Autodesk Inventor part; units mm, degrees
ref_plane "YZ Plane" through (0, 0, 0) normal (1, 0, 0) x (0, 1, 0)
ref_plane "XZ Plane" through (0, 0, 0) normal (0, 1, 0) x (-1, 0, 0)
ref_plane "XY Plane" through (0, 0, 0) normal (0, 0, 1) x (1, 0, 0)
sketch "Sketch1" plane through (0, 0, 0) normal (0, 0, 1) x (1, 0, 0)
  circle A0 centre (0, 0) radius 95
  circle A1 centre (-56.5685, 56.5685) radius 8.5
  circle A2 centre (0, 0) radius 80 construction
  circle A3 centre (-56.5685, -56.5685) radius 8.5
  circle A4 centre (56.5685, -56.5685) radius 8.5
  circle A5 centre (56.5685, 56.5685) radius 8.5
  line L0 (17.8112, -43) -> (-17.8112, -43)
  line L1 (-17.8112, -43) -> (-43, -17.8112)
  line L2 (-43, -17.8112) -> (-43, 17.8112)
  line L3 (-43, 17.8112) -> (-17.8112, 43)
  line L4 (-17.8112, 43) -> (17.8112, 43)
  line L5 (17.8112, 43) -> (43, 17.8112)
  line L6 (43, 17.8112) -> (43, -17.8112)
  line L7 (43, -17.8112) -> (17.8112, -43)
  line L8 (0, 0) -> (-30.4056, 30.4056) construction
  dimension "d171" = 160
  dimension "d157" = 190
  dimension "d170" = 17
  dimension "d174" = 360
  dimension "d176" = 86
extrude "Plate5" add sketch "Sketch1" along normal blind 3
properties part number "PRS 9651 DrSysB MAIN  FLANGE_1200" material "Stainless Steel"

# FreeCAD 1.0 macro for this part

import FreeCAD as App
import Part
import Sketcher

V = App.Vector
Q = App.Units.Quantity

doc = App.newDocument("Part")
params = doc.addObject("Spreadsheet::Sheet", "Params")
for row, (alias, value) in enumerate([
    ("sketch1_diameter", "190 mm"),
    ("sketch1_diameter2", "17 mm"),
    ("pad1_length", "3 mm"),
], start=1):
    params.set(f"A{row}", alias)
    params.set(f"B{row}", "=" + value)
    params.setAlias(f"B{row}", alias)

body = doc.addObject("PartDesign::Body", "Body")

# Sketch on XY plane
sketch1 = body.newObject("Sketcher::SketchObject", "Sketch")
sketch1.AttachmentSupport = (doc.getObject("XY_Plane"), [""])
sketch1.MapMode = "FlatFace"
sketch1.addGeometry(Part.Circle(V(0, 0, 0), V(0, 0, 1), 95), False)
sketch1.addGeometry(Part.Circle(V(-56.5685, -56.5685, 0), V(0, 0, 1), 8.5), False)
sketch1.addGeometry(Part.Circle(V(56.5685, -56.5685, 0), V(0, 0, 1), 8.5), False)
sketch1.addGeometry(Part.Circle(V(-56.5685, 56.5685, 0), V(0, 0, 1), 8.5), False)
sketch1.addGeometry(Part.LineSegment(V(43, -17.8112, 0), V(17.8112, -43, 0)), False)
sketch1.addGeometry(Part.LineSegment(V(17.8112, -43, 0), V(-17.8112, -43, 0)), False)
sketch1.addGeometry(Part.LineSegment(V(-17.8112, -43, 0), V(-43, -17.8112, 0)), False)
sketch1.addGeometry(Part.LineSegment(V(-43, -17.8112, 0), V(-43, 17.8112, 0)), False)
sketch1.addGeometry(Part.LineSegment(V(-43, 17.8112, 0), V(-17.8112, 43, 0)), False)
sketch1.addGeometry(Part.LineSegment(V(-17.8112, 43, 0), V(17.8112, 43, 0)), False)
sketch1.addGeometry(Part.LineSegment(V(17.8112, 43, 0), V(43, 17.8112, 0)), False)
sketch1.addGeometry(Part.LineSegment(V(43, 17.8112, 0), V(43, -17.8112, 0)), False)
sketch1.addGeometry(Part.Circle(V(56.5685, 56.5685, 0), V(0, 0, 1), 8.5), False)
sketch1.addConstraint(Sketcher.Constraint("Coincident", 4, 2, 5, 1))
sketch1.addConstraint(Sketcher.Constraint("Coincident", 5, 2, 6, 1))
sketch1.addConstraint(Sketcher.Constraint("Coincident", 6, 2, 7, 1))
sketch1.addConstraint(Sketcher.Constraint("Coincident", 7, 2, 8, 1))
sketch1.addConstraint(Sketcher.Constraint("Coincident", 8, 2, 9, 1))
sketch1.addConstraint(Sketcher.Constraint("Coincident", 9, 2, 10, 1))
sketch1.addConstraint(Sketcher.Constraint("Coincident", 10, 2, 11, 1))
sketch1.addConstraint(Sketcher.Constraint("Coincident", 11, 2, 4, 1))
sketch1.addConstraint(Sketcher.Constraint("Horizontal", 5))
sketch1.addConstraint(Sketcher.Constraint("Vertical", 7))
sketch1.addConstraint(Sketcher.Constraint("Horizontal", 9))
sketch1.addConstraint(Sketcher.Constraint("Vertical", 11))
sketch1.addConstraint(Sketcher.Constraint("Coincident", 0, 3, -1, 1))
sketch1.addConstraint(Sketcher.Constraint("Equal", 1, 2))
sketch1.addConstraint(Sketcher.Constraint("Equal", 2, 3))
sketch1.addConstraint(Sketcher.Constraint("Equal", 3, 12))
sketch1.addConstraint(Sketcher.Constraint("Symmetric", 2, 3, 3, 3, -1, 1))
sketch1.addConstraint(Sketcher.Constraint("Symmetric", 1, 3, 12, 3, -1, 1))
sketch1.addConstraint(Sketcher.Constraint("Symmetric", 4, 2, 8, 2, -1, 1))
sketch1.addConstraint(Sketcher.Constraint("Symmetric", 6, 2, 10, 2, -1, 1))
sketch1.addConstraint(Sketcher.Constraint("Symmetric", 1, 3, 2, 3, -2))
sketch1.addConstraint(Sketcher.Constraint("Perpendicular", 4, 6))
sketch1.addConstraint(Sketcher.Constraint("Perpendicular", 6, 8))
sketch1.addConstraint(Sketcher.Constraint("Perpendicular", 8, 10))
sketch1.addConstraint(Sketcher.Constraint("Horizontal", 7, 2, 10, 2))
sketch1.addConstraint(Sketcher.Constraint("Vertical", 5, 2, 8, 2))
sketch1.addConstraint(Sketcher.Constraint("Equal", 9, 7))
sketch1.addConstraint(Sketcher.Constraint("Diameter", 0, Q("190 mm")))
sketch1.addConstraint(Sketcher.Constraint("Diameter", 1, Q("17 mm")))
sketch1.addConstraint(Sketcher.Constraint("DistanceY", 4, 2, -1, 1, Q("43 mm")))
sketch1.addConstraint(Sketcher.Constraint("DistanceX", 5, 2, 5, 1, Q("35.6224 mm")))
sketch1.addConstraint(Sketcher.Constraint("DistanceX", 1, 3, 2, 3, Q("113.137 mm")))
sketch1.addConstraint(Sketcher.Constraint("DistanceY", 1, 3, 3, 3, Q("113.137 mm")))
sketch1.setExpression("Constraints[27]", "Params.sketch1_diameter")
sketch1.setExpression("Constraints[28]", "Params.sketch1_diameter2")
pad1 = body.newObject("PartDesign::Pad", "Pad")
pad1.Profile = sketch1
pad1.setExpression("Length", "Params.pad1_length")

doc.recompute()
